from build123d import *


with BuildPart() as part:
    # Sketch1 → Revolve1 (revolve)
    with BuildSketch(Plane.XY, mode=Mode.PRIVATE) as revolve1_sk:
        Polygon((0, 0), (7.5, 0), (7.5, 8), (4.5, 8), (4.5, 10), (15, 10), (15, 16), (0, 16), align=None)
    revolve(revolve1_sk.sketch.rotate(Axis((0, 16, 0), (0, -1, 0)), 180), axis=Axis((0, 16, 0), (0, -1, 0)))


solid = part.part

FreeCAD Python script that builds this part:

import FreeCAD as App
import Part
import Sketcher

V = App.Vector

doc = App.newDocument("Part")
body = doc.addObject("PartDesign::Body", "Body")

# Sketch on XY plane
sketch1 = body.newObject("Sketcher::SketchObject", "Sketch")
sketch1.AttachmentSupport = (doc.getObject("XY_Plane"), [""])
sketch1.MapMode = "FlatFace"
sketch1.addGeometry(Part.LineSegment(V(0, 0, 0), V(7.5, 0, 0)), False)
sketch1.addGeometry(Part.LineSegment(V(7.5, 0, 0), V(7.5, 8, 0)), False)
sketch1.addGeometry(Part.LineSegment(V(7.5, 8, 0), V(4.5, 8, 0)), False)
sketch1.addGeometry(Part.LineSegment(V(4.5, 8, 0), V(4.5, 10, 0)), False)
sketch1.addGeometry(Part.LineSegment(V(4.5, 10, 0), V(15, 10, 0)), False)
sketch1.addGeometry(Part.LineSegment(V(15, 10, 0), V(15, 16, 0)), False)
sketch1.addGeometry(Part.LineSegment(V(15, 16, 0), V(0, 16, 0)), False)
sketch1.addGeometry(Part.LineSegment(V(0, 16, 0), V(0, 0, 0)), False)
sketch1.addConstraint(Sketcher.Constraint("Coincident", 0, 2, 1, 1))
sketch1.addConstraint(Sketcher.Constraint("Coincident", 1, 2, 2, 1))
sketch1.addConstraint(Sketcher.Constraint("Coincident", 2, 2, 3, 1))
sketch1.addConstraint(Sketcher.Constraint("Coincident", 3, 2, 4, 1))
sketch1.addConstraint(Sketcher.Constraint("Coincident", 4, 2, 5, 1))
sketch1.addConstraint(Sketcher.Constraint("Coincident", 5, 2, 6, 1))
sketch1.addConstraint(Sketcher.Constraint("Coincident", 6, 2, 7, 1))
sketch1.addConstraint(Sketcher.Constraint("Coincident", 7, 2, 0, 1))
sketch1.addConstraint(Sketcher.Constraint("Horizontal", 0))
sketch1.addConstraint(Sketcher.Constraint("Vertical", 1))
sketch1.addConstraint(Sketcher.Constraint("Horizontal", 2))
sketch1.addConstraint(Sketcher.Constraint("Vertical", 3))
sketch1.addConstraint(Sketcher.Constraint("Horizontal", 4))
sketch1.addConstraint(Sketcher.Constraint("Vertical", 5))
sketch1.addConstraint(Sketcher.Constraint("Horizontal", 6))
sketch1.addConstraint(Sketcher.Constraint("Vertical", 7))
sketch1.addConstraint(Sketcher.Constraint("Coincident", 7, 2, -1, 1))
sketch1.addConstraint(Sketcher.Constraint("DistanceX", 2, 2, 2, 1, 3.0))
sketch1.addConstraint(Sketcher.Constraint("DistanceX", 6, 2, 6, 1, 15.0))
sketch1.addConstraint(Sketcher.Constraint("DistanceY", 1, 1, 1, 2, 8.0))
sketch1.addConstraint(Sketcher.Constraint("DistanceY", 3, 1, 3, 2, 2.0))
sketch1.addConstraint(Sketcher.Constraint("DistanceY", 5, 1, 5, 2, 6.0))
sketch1.addConstraint(Sketcher.Constraint("DistanceX", 0, 1, 0, 2, 7.5))
revolution = body.newObject("PartDesign::Revolution", "Revolution")
revolution.Profile = sketch1
revolution.ReferenceAxis = (sketch1, ["V_Axis"])
revolution.Angle = 360

doc.recompute()
